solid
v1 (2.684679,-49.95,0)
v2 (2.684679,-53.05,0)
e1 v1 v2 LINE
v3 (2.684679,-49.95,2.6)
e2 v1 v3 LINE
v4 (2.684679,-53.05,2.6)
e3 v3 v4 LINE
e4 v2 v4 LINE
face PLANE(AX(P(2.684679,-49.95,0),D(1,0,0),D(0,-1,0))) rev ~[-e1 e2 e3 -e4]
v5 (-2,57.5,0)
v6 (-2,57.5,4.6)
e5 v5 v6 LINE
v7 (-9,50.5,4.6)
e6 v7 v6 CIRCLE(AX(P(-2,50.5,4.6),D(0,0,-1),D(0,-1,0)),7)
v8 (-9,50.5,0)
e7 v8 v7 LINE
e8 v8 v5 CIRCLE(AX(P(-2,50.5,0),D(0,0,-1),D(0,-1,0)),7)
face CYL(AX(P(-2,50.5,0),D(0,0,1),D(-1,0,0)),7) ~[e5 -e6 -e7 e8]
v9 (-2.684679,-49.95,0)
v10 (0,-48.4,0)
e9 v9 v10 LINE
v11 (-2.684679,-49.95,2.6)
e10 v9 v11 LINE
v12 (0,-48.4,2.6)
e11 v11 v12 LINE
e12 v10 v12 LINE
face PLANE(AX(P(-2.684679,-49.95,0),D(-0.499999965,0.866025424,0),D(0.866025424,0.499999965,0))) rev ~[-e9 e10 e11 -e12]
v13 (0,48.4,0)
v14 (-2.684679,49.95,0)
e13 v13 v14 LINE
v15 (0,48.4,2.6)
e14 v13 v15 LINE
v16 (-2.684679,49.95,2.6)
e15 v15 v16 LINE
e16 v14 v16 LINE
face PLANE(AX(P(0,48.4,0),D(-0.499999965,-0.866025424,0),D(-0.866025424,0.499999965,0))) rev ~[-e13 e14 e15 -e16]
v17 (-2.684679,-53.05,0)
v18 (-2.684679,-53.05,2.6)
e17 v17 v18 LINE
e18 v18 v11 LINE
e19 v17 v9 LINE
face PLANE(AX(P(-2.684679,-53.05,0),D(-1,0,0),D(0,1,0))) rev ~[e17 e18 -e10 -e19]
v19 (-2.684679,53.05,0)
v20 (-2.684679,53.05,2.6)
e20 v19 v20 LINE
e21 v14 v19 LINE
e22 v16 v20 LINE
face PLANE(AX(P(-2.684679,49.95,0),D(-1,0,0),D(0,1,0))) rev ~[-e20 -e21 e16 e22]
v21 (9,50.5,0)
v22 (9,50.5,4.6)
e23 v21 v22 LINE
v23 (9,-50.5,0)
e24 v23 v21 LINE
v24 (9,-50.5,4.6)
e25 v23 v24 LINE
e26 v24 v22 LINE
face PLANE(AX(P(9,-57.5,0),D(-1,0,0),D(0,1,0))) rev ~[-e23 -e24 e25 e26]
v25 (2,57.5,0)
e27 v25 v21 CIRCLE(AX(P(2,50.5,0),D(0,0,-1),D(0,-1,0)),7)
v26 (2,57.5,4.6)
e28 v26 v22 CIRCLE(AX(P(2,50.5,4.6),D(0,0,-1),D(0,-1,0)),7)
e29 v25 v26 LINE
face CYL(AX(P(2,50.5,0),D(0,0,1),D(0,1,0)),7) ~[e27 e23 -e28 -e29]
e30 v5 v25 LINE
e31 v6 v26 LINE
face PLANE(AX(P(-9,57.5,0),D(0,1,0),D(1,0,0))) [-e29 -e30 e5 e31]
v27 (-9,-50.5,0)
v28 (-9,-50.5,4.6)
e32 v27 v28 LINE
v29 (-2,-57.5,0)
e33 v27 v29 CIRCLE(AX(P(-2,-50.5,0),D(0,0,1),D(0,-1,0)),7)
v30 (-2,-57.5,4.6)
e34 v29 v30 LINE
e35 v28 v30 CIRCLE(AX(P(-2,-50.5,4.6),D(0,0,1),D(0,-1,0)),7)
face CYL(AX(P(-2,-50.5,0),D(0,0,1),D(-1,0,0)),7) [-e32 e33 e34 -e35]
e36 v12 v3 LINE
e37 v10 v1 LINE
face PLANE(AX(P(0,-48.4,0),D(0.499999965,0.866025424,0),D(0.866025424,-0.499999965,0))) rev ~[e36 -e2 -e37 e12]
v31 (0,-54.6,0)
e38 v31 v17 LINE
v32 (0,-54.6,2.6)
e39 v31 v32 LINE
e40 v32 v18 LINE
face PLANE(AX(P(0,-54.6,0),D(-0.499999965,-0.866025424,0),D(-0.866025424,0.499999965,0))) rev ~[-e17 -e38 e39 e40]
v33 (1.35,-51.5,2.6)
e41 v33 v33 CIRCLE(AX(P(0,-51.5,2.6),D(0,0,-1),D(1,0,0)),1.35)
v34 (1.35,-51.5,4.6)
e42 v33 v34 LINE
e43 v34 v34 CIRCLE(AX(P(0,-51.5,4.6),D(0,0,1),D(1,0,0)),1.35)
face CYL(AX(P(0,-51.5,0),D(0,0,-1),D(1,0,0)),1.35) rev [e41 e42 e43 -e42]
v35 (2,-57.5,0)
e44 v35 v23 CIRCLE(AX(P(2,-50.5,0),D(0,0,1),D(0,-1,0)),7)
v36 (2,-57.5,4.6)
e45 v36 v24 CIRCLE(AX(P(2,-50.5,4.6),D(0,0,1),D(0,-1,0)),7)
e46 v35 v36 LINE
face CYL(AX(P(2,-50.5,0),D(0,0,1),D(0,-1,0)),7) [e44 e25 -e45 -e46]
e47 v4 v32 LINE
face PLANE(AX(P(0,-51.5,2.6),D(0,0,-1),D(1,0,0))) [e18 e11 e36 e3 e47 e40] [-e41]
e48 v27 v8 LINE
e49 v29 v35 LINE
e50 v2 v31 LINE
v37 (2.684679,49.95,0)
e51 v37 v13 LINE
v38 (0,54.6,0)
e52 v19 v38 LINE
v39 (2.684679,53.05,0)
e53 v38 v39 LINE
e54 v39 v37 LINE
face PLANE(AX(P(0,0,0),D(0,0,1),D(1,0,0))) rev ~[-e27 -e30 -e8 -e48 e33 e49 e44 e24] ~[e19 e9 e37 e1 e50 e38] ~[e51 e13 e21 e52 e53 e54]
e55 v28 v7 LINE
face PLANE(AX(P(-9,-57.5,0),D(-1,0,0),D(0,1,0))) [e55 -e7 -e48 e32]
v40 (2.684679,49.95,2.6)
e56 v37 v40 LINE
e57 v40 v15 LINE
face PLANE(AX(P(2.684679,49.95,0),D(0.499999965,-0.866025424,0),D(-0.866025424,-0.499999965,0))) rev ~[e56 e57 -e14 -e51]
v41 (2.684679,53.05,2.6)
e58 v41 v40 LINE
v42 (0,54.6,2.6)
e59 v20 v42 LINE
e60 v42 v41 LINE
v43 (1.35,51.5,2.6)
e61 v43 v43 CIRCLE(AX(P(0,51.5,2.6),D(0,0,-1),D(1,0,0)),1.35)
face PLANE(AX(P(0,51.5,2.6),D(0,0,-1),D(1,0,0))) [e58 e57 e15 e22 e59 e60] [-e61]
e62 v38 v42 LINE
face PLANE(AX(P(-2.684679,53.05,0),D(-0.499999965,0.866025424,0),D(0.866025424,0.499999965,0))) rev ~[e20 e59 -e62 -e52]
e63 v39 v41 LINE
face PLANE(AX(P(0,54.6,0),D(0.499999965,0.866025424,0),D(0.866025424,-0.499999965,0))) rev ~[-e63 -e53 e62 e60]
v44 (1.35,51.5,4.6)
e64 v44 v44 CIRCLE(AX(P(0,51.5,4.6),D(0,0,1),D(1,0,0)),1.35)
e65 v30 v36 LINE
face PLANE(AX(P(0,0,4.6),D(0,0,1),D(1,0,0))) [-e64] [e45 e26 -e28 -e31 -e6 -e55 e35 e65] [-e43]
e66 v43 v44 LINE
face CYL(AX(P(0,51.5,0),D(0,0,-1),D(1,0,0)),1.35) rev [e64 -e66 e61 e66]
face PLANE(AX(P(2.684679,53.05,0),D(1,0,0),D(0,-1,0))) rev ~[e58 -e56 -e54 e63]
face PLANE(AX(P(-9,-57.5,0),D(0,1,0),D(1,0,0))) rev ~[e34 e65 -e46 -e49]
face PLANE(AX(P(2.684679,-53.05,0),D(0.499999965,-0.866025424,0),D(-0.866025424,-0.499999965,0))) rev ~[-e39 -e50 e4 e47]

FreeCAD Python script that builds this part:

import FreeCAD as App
import Part
import Sketcher
Q = App.Units.Quantity


def edges_at(feature, points):
    """Names of the edges that pass closest to the given points."""
    edges = feature.Shape.Edges
    near = lambda p: min(range(len(edges)), key=lambda i: edges[i].distToShape(Part.Vertex(*p))[0])
    return sorted({f"Edge{near(p) + 1}" for p in points})


def add_polygon(sketch, points):
    """Adds a closed chain of lines whose ends are joined by coincident constraints."""
    first, n = sketch.GeometryCount, len(points)
    for a, b in zip(points, points[1:] + points[:1]):
        sketch.addGeometry(Part.LineSegment(App.Vector(*a, 0), App.Vector(*b, 0)), False)
    for i in range(n):
        sketch.addConstraint(Sketcher.Constraint("Coincident", first + i, 2, first + (i + 1) % n, 1))

doc = App.newDocument("Part")
body = doc.addObject("PartDesign::Body", "Body")

# Sketch on XY plane
sketch1 = body.newObject("Sketcher::SketchObject", "Sketch")
sketch1.AttachmentSupport = (doc.getObject("XY_Plane"), [""])
sketch1.MapMode = "FlatFace"
add_polygon(sketch1, [(-9, 57.5), (-9, -57.5), (9, -57.5), (9, 57.5)])  # lines 0-3
sketch1.addGeometry(Part.Circle(App.Vector(0, -51.5, 0), App.Vector(0, 0, 1), 1.4), False)  # 4
sketch1.addGeometry(Part.Circle(App.Vector(0, 51.5, 0), App.Vector(0, 0, 1), 1.4), False)  # 5
sketch1.addConstraint(Sketcher.Constraint("Vertical", 0))
sketch1.addConstraint(Sketcher.Constraint("Horizontal", 1))
sketch1.addConstraint(Sketcher.Constraint("Vertical", 2))
sketch1.addConstraint(Sketcher.Constraint("Horizontal", 3))
sketch1.addConstraint(Sketcher.Constraint("Equal", 4, 5))
sketch1.addConstraint(Sketcher.Constraint("Symmetric", 4, 3, 5, 3, -1, 1))
sketch1.addConstraint(Sketcher.Constraint("Symmetric", 0, 2, 2, 2, -1, 1))
sketch1.addConstraint(Sketcher.Constraint("PointOnObject", 4, 3, -2))
sketch1.addConstraint(Sketcher.Constraint("Diameter", 4, Q("2.7 mm")))
sketch1.addConstraint(Sketcher.Constraint("DistanceX", 1, 1, 1, 2, Q("18 mm")))
sketch1.addConstraint(Sketcher.Constraint("DistanceY", 0, 2, 0, 1, Q("115 mm")))
sketch1.addConstraint(Sketcher.Constraint("DistanceY", 4, 3, 5, 3, Q("103 mm")))
pad1 = body.newObject("PartDesign::Pad", "Pad")
pad1.Profile = sketch1
pad1.Length = 4.6

# Sketch on XY plane
sketch2 = body.newObject("Sketcher::SketchObject", "Sketch001")
sketch2.AttachmentSupport = (doc.getObject("XY_Plane"), [""])
sketch2.MapMode = "FlatFace"
add_polygon(sketch2, [(2.7, -50), (2.7, -53), (0, -54.6), (-2.7, -53), (-2.7, -50), (0, -48.4)])  # lines 0-5
add_polygon(sketch2, [(2.7, 53), (2.7, 50), (0, 48.4), (-2.7, 50), (-2.7, 53), (0, 54.6)])  # lines 6-11
sketch2.addConstraint(Sketcher.Constraint("Vertical", 0))
sketch2.addConstraint(Sketcher.Constraint("Vertical", 3))
sketch2.addConstraint(Sketcher.Constraint("Vertical", 6))
sketch2.addConstraint(Sketcher.Constraint("Vertical", 9))
sketch2.addConstraint(Sketcher.Constraint("Symmetric", 3, 2, 6, 2, -1, 1))
sketch2.addConstraint(Sketcher.Constraint("Symmetric", 4, 2, 7, 2, -1, 1))
sketch2.addConstraint(Sketcher.Constraint("Symmetric", 5, 2, 8, 2, -1, 1))
sketch2.addConstraint(Sketcher.Constraint("Symmetric", 1, 2, 10, 2, -1, 1))
sketch2.addConstraint(Sketcher.Constraint("Symmetric", 0, 2, 2, 2, -2))
sketch2.addConstraint(Sketcher.Constraint("PointOnObject", 1, 2, -2))
sketch2.addConstraint(Sketcher.Constraint("PointOnObject", 4, 2, -2))
sketch2.addConstraint(Sketcher.Constraint("Parallel", 1, 4))
sketch2.addConstraint(Sketcher.Constraint("Parallel", 2, 5))
sketch2.addConstraint(Sketcher.Constraint("Parallel", 7, 10))
sketch2.addConstraint(Sketcher.Constraint("Parallel", 8, 11))
sketch2.addConstraint(Sketcher.Constraint("Angle", 1, Q("-150.000002 deg")))
sketch2.addConstraint(Sketcher.Constraint("DistanceY", 0, 2, 0, 1, Q("3.1 mm")))
sketch2.addConstraint(Sketcher.Constraint("DistanceY", 0, 2, 6, 2, Q("103 mm")))
sketch2.addConstraint(Sketcher.Constraint("Distance", 1, Q("3.1 mm")))
pocket1 = body.newObject("PartDesign::Pocket", "Pocket")
pocket1.Profile = sketch2
pocket1.Length = 2.6
pocket1.Reversed = True
doc.recompute()

fillet = body.newObject("PartDesign::Fillet", "Fillet")
fillet.Base = (pocket1, edges_at(pocket1, [
    (-9, 57.5, 2.3),
    (9, 57.5, 2.3),
    (9, -57.5, 2.3),
    (-9, -57.5, 2.3),
]))
fillet.Radius = 7

doc.recompute()
